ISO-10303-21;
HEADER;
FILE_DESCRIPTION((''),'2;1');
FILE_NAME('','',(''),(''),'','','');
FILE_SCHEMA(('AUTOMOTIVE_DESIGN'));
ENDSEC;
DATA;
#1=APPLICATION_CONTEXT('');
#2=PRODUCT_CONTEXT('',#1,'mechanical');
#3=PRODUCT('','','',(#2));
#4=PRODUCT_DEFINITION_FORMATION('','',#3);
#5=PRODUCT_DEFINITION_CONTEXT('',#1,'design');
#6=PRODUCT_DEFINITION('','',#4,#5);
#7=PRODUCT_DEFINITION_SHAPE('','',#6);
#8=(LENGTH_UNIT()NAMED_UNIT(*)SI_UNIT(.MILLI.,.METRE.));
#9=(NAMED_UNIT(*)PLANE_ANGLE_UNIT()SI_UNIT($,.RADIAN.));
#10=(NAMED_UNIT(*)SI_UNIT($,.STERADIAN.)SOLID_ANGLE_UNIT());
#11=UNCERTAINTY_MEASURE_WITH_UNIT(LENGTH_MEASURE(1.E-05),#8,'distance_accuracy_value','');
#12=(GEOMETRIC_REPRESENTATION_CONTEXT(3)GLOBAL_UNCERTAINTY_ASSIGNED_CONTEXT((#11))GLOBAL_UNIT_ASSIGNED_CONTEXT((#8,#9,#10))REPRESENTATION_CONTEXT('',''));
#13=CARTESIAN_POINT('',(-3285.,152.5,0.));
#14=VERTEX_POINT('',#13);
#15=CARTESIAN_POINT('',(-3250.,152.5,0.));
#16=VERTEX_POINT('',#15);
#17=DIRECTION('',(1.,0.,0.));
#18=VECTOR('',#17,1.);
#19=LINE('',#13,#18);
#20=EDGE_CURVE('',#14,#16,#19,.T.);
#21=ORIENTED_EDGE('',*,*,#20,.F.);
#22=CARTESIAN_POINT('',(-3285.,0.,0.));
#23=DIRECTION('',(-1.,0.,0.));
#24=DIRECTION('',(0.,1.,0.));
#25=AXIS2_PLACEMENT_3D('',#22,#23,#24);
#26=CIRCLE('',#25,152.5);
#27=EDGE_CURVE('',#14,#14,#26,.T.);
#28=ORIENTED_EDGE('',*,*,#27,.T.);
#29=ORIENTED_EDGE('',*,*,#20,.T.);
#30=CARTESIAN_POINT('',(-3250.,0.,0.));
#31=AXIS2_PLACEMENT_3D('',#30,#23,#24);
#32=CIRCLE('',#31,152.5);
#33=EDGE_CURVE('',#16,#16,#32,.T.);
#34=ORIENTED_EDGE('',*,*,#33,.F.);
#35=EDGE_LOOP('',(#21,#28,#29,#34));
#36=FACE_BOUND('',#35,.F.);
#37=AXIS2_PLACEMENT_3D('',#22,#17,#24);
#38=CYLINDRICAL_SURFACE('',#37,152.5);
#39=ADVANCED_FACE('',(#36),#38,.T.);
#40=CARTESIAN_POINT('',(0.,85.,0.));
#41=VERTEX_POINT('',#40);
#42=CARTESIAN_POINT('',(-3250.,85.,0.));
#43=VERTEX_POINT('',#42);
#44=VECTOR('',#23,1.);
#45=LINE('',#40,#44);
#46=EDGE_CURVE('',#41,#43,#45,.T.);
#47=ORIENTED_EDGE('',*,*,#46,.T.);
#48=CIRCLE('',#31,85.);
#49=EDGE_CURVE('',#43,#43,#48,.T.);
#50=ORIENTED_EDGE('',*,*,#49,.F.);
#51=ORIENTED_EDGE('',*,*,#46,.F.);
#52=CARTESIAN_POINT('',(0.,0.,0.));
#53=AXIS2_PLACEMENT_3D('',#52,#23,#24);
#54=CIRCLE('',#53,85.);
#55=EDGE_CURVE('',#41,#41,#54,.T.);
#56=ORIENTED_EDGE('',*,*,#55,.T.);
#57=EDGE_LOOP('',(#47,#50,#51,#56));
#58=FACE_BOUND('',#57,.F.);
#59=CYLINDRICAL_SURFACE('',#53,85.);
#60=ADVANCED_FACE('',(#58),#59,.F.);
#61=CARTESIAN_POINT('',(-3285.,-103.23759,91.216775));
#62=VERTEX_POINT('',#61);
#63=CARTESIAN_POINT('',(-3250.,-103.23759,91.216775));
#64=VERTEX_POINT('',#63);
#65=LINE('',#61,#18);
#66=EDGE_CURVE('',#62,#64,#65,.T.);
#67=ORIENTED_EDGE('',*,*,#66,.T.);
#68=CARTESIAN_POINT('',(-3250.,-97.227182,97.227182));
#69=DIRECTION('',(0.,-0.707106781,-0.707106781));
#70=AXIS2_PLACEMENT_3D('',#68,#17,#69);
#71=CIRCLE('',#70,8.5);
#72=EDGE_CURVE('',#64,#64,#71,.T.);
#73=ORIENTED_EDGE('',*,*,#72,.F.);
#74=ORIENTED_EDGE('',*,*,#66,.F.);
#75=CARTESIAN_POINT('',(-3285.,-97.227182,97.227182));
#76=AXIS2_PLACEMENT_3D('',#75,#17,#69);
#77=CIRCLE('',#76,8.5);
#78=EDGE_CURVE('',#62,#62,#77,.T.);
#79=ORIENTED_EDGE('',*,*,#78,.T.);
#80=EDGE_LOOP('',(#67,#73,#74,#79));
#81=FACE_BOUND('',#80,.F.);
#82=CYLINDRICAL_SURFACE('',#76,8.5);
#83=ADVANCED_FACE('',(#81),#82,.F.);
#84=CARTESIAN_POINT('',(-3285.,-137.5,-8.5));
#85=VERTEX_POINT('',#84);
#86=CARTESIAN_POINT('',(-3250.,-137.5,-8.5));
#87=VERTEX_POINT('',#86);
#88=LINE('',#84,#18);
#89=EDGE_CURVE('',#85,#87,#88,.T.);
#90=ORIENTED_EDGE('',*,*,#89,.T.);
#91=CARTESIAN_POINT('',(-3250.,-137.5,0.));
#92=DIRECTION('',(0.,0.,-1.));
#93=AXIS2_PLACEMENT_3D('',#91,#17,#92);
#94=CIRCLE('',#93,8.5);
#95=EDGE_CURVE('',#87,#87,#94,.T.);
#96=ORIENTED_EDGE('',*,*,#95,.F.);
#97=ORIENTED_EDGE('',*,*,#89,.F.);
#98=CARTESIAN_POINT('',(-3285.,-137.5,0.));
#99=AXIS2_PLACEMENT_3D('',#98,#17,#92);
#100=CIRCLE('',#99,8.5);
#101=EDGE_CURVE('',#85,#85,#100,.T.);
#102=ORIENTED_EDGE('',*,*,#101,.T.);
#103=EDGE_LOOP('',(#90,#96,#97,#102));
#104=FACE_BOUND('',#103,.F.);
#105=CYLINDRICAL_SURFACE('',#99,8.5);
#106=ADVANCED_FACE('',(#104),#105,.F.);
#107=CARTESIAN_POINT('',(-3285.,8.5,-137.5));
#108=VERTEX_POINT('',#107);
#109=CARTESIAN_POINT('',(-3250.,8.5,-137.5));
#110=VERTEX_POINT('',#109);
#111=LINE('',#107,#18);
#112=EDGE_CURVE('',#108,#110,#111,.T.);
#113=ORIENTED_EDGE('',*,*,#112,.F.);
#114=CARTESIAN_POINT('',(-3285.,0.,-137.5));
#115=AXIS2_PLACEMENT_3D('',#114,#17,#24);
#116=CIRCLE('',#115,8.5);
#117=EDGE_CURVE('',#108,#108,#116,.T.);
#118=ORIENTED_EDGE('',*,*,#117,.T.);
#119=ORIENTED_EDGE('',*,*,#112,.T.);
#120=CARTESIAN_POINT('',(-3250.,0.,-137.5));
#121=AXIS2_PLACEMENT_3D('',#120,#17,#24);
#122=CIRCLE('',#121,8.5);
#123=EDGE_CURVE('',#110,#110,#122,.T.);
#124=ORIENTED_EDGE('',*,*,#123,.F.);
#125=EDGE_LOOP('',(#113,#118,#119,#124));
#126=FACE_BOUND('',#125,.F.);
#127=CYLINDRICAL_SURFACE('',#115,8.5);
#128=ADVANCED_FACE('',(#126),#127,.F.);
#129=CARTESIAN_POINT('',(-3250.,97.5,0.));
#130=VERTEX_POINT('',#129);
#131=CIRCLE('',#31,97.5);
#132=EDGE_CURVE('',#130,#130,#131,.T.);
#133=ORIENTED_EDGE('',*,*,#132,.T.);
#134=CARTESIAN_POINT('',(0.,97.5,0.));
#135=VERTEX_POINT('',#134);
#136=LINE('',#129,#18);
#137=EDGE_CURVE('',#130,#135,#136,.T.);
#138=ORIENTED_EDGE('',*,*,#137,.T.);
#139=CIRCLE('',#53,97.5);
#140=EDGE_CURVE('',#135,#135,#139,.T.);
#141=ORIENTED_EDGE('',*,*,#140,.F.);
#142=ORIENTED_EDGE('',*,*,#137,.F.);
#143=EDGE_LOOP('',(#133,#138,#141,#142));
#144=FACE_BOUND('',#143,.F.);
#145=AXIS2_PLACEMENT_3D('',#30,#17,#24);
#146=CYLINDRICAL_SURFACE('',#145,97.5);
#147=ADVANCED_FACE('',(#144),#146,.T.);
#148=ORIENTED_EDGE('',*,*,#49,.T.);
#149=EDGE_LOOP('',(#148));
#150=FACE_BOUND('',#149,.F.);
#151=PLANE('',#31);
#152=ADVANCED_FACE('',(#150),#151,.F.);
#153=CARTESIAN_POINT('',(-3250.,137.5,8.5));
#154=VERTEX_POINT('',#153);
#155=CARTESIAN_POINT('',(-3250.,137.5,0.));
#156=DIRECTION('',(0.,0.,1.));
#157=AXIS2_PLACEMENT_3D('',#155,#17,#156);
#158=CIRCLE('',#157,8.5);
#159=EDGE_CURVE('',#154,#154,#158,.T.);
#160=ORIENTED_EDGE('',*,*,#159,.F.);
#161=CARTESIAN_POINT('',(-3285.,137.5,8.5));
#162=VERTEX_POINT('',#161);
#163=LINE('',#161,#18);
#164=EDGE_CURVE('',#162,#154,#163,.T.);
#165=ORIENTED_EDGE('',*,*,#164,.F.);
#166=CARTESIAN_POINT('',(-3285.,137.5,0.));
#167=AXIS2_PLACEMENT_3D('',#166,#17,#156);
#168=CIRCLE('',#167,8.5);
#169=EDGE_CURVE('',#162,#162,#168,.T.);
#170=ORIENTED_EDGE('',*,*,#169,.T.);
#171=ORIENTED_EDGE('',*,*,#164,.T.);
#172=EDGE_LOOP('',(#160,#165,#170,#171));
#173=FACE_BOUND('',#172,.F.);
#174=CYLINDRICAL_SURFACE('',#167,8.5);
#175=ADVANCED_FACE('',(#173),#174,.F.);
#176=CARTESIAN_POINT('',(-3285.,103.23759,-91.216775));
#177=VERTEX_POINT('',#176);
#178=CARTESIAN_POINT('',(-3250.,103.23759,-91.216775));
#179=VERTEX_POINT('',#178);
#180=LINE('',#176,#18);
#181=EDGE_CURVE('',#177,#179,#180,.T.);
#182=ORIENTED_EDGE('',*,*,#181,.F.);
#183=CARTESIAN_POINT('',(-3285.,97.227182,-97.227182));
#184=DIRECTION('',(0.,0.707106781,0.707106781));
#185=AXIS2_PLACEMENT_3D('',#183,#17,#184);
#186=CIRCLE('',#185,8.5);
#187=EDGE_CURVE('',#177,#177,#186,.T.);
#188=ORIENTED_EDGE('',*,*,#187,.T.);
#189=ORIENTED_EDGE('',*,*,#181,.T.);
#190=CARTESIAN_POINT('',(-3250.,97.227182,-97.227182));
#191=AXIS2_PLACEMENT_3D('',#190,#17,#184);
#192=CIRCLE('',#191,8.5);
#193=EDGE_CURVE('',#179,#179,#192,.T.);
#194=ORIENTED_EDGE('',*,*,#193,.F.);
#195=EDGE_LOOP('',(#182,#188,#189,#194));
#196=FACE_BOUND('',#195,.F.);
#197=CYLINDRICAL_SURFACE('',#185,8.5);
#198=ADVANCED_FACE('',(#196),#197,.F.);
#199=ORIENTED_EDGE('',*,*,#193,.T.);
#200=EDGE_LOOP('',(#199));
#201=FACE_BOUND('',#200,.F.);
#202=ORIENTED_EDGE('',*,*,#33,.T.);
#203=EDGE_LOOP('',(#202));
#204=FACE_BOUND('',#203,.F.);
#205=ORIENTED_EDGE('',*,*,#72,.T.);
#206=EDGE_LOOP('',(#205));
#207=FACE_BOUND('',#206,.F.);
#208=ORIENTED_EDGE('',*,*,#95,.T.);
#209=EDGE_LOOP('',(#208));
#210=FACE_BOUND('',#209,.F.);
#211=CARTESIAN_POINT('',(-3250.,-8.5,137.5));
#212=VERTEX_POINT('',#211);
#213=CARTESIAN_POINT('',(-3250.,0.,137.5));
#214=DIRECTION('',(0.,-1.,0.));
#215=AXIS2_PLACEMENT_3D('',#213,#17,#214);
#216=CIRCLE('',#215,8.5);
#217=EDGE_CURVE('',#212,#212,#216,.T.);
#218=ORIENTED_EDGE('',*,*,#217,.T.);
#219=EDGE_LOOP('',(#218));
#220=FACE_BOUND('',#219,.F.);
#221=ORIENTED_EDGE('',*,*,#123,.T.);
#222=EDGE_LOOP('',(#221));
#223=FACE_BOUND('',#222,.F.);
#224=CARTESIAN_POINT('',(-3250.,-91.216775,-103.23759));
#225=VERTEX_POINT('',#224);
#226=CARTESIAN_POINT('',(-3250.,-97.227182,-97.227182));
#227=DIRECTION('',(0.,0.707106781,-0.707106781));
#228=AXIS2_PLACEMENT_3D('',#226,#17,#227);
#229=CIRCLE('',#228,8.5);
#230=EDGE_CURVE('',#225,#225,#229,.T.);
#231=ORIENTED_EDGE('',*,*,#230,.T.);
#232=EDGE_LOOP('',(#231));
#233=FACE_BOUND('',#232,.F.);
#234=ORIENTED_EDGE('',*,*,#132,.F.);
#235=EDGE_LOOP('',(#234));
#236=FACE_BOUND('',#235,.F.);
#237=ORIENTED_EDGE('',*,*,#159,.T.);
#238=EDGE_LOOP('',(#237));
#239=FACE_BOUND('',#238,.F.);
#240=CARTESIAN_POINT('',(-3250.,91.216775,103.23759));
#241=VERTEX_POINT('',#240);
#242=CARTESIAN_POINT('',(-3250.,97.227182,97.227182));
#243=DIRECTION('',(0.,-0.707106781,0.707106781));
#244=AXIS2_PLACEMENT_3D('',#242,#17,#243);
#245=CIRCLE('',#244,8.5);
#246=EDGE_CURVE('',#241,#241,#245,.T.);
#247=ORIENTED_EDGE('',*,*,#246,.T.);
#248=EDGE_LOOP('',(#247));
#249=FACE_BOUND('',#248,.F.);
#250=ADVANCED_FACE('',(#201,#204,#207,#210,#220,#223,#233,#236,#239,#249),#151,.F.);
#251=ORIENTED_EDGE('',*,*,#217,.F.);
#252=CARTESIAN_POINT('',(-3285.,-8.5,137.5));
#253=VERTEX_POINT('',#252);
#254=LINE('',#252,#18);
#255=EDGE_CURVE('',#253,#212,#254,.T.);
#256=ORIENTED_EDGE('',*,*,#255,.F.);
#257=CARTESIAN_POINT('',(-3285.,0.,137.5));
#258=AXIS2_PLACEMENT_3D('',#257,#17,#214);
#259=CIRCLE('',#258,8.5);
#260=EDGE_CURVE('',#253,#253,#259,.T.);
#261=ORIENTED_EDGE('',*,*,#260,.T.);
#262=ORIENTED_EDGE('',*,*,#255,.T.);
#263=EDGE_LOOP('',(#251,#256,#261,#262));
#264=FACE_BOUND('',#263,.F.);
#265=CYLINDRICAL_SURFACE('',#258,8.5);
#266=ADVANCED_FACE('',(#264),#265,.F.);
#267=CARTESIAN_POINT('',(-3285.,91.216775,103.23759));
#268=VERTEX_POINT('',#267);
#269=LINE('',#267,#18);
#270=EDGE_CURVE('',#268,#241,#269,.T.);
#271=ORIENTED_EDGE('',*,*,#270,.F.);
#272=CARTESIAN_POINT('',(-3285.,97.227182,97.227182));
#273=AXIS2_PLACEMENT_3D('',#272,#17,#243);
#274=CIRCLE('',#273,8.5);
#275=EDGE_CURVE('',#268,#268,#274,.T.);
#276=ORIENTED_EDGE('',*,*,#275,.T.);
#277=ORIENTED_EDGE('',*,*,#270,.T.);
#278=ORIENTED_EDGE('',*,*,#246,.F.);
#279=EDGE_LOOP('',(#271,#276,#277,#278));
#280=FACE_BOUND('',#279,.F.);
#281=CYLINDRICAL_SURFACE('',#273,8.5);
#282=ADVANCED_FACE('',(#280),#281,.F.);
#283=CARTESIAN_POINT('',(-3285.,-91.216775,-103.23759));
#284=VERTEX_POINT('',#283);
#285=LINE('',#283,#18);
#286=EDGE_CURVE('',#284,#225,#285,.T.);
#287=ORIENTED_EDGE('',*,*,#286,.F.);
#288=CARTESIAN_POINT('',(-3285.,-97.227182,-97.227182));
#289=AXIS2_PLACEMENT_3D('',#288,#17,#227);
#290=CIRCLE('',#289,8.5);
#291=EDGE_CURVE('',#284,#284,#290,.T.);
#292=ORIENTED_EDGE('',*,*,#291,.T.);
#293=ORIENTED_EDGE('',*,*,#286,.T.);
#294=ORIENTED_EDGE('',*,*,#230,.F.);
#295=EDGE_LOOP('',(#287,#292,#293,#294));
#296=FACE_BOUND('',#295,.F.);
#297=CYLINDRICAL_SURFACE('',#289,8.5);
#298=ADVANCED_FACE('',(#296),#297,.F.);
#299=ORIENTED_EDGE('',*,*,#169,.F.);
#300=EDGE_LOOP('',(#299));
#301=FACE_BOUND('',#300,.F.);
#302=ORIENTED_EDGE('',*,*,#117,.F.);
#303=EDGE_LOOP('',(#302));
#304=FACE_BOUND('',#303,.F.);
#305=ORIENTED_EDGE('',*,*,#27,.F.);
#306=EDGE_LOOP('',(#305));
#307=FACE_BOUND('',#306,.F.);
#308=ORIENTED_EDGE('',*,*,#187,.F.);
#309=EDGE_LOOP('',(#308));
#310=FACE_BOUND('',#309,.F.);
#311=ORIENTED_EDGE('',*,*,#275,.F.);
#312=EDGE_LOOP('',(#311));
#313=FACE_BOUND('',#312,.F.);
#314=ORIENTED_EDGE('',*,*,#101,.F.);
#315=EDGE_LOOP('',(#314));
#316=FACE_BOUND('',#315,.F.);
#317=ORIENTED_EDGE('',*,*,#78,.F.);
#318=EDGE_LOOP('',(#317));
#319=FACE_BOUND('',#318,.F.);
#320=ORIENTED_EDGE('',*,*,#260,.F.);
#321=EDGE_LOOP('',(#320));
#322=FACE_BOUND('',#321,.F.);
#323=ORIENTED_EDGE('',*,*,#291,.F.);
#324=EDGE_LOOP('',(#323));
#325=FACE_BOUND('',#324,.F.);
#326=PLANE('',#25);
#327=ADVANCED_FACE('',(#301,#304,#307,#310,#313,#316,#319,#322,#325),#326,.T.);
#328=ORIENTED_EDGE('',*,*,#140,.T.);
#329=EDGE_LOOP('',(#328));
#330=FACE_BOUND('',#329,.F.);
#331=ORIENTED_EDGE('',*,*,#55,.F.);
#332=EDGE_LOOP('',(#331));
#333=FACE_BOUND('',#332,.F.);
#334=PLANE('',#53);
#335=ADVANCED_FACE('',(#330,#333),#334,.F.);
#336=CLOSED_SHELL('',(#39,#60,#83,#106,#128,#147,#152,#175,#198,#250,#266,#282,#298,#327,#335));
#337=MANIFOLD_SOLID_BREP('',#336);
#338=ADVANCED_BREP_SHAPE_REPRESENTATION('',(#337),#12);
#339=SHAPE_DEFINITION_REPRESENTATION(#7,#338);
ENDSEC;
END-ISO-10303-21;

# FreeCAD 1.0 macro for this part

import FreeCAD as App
import Part
import Sketcher
from FreeCAD import Vector


def add_polygon(sketch, points):
    """Adds a closed chain of lines whose ends are joined by coincident constraints."""
    first, n = sketch.GeometryCount, len(points)
    for a, b in zip(points, points[1:] + points[:1]):
        sketch.addGeometry(Part.LineSegment(App.Vector(*a, 0), App.Vector(*b, 0)), False)
    for i in range(n):
        sketch.addConstraint(Sketcher.Constraint("Coincident", first + i, 2, first + (i + 1) % n, 1))

doc = App.newDocument("Part")
body = doc.addObject("PartDesign::Body", "Body")

# Sketch on XY plane
sketch1 = doc.addObject("Sketcher::SketchObject", "Sketch")
body.addObject(sketch1)
sketch1.AttachmentSupport = (doc.XY_Plane, [""])
sketch1.MapMode = "FlatFace"
add_polygon(sketch1, [(-3285, 0), (-3250, 0), (-3250, 85), (0, 85), (0, 98), (-3250, 98), (-3250, 152), (-3285, 152)])  # lines 0-7
sketch1.addConstraint(Sketcher.Constraint("Horizontal", 0))
sketch1.addConstraint(Sketcher.Constraint("Vertical", 1))
sketch1.addConstraint(Sketcher.Constraint("Horizontal", 2))
sketch1.addConstraint(Sketcher.Constraint("Vertical", 3))
sketch1.addConstraint(Sketcher.Constraint("Horizontal", 4))
sketch1.addConstraint(Sketcher.Constraint("Vertical", 5))
sketch1.addConstraint(Sketcher.Constraint("Horizontal", 6))
sketch1.addConstraint(Sketcher.Constraint("Vertical", 7))
sketch1.addConstraint(Sketcher.Constraint("PointOnObject", 0, 2, -1))
sketch1.addConstraint(Sketcher.Constraint("PointOnObject", 2, 2, -2))
sketch1.addConstraint(Sketcher.Constraint("Vertical", 1, 2, 4, 2))
sketch1.addConstraint(Sketcher.Constraint("DistanceX", 0, 1, 0, 2, 35.0))
sketch1.addConstraint(Sketcher.Constraint("DistanceX", 6, 2, -1, 1, 3285.0))
sketch1.addConstraint(Sketcher.Constraint("DistanceY", 1, 1, 1, 2, 85.0))
sketch1.addConstraint(Sketcher.Constraint("DistanceY", 5, 1, 5, 2, 55.0))
sketch1.addConstraint(Sketcher.Constraint("DistanceY", 3, 1, 3, 2, 12.5))
revolution = doc.addObject("PartDesign::Revolution", "Revolution")
body.addObject(revolution)
revolution.Profile = sketch1
revolution.ReferenceAxis = (sketch1, ["H_Axis"])
revolution.Angle = 360

# Sketch on YZ plane
sketch2 = doc.addObject("Sketcher::SketchObject", "Sketch001")
body.addObject(sketch2)
sketch2.AttachmentSupport = (doc.YZ_Plane, [""])
sketch2.MapMode = "FlatFace"
sketch2.AttachmentOffset = App.Placement(Vector(0, 0, -3285), App.Rotation())
sketch2.addGeometry(Part.Circle(Vector(138, 0, 0), Vector(0, 0, 1), 8), False)
sketch2.addConstraint(Sketcher.Constraint("PointOnObject", 0, 3, -1))
sketch2.addConstraint(Sketcher.Constraint("Diameter", 0, 17.0))
sketch2.addConstraint(Sketcher.Constraint("DistanceX", -1, 1, 0, 3, 137.5))
doc.recompute()
hole = doc.addObject("PartDesign::Hole", "Hole")
body.addObject(hole)
hole.Profile = sketch2
hole.ThreadType = "None"
hole.Diameter = 17
hole.DepthType = "ThroughAll"
hole.Reversed = True
doc.recompute()

polarpattern = doc.addObject("PartDesign::PolarPattern", "PolarPattern")
body.addObject(polarpattern)
polarpattern.Originals = [hole]
polarpattern.Axis = (doc.X_Axis, [""])
polarpattern.Angle = 360
polarpattern.Occurrences = 8
body.Tip = polarpattern

doc.recompute()
